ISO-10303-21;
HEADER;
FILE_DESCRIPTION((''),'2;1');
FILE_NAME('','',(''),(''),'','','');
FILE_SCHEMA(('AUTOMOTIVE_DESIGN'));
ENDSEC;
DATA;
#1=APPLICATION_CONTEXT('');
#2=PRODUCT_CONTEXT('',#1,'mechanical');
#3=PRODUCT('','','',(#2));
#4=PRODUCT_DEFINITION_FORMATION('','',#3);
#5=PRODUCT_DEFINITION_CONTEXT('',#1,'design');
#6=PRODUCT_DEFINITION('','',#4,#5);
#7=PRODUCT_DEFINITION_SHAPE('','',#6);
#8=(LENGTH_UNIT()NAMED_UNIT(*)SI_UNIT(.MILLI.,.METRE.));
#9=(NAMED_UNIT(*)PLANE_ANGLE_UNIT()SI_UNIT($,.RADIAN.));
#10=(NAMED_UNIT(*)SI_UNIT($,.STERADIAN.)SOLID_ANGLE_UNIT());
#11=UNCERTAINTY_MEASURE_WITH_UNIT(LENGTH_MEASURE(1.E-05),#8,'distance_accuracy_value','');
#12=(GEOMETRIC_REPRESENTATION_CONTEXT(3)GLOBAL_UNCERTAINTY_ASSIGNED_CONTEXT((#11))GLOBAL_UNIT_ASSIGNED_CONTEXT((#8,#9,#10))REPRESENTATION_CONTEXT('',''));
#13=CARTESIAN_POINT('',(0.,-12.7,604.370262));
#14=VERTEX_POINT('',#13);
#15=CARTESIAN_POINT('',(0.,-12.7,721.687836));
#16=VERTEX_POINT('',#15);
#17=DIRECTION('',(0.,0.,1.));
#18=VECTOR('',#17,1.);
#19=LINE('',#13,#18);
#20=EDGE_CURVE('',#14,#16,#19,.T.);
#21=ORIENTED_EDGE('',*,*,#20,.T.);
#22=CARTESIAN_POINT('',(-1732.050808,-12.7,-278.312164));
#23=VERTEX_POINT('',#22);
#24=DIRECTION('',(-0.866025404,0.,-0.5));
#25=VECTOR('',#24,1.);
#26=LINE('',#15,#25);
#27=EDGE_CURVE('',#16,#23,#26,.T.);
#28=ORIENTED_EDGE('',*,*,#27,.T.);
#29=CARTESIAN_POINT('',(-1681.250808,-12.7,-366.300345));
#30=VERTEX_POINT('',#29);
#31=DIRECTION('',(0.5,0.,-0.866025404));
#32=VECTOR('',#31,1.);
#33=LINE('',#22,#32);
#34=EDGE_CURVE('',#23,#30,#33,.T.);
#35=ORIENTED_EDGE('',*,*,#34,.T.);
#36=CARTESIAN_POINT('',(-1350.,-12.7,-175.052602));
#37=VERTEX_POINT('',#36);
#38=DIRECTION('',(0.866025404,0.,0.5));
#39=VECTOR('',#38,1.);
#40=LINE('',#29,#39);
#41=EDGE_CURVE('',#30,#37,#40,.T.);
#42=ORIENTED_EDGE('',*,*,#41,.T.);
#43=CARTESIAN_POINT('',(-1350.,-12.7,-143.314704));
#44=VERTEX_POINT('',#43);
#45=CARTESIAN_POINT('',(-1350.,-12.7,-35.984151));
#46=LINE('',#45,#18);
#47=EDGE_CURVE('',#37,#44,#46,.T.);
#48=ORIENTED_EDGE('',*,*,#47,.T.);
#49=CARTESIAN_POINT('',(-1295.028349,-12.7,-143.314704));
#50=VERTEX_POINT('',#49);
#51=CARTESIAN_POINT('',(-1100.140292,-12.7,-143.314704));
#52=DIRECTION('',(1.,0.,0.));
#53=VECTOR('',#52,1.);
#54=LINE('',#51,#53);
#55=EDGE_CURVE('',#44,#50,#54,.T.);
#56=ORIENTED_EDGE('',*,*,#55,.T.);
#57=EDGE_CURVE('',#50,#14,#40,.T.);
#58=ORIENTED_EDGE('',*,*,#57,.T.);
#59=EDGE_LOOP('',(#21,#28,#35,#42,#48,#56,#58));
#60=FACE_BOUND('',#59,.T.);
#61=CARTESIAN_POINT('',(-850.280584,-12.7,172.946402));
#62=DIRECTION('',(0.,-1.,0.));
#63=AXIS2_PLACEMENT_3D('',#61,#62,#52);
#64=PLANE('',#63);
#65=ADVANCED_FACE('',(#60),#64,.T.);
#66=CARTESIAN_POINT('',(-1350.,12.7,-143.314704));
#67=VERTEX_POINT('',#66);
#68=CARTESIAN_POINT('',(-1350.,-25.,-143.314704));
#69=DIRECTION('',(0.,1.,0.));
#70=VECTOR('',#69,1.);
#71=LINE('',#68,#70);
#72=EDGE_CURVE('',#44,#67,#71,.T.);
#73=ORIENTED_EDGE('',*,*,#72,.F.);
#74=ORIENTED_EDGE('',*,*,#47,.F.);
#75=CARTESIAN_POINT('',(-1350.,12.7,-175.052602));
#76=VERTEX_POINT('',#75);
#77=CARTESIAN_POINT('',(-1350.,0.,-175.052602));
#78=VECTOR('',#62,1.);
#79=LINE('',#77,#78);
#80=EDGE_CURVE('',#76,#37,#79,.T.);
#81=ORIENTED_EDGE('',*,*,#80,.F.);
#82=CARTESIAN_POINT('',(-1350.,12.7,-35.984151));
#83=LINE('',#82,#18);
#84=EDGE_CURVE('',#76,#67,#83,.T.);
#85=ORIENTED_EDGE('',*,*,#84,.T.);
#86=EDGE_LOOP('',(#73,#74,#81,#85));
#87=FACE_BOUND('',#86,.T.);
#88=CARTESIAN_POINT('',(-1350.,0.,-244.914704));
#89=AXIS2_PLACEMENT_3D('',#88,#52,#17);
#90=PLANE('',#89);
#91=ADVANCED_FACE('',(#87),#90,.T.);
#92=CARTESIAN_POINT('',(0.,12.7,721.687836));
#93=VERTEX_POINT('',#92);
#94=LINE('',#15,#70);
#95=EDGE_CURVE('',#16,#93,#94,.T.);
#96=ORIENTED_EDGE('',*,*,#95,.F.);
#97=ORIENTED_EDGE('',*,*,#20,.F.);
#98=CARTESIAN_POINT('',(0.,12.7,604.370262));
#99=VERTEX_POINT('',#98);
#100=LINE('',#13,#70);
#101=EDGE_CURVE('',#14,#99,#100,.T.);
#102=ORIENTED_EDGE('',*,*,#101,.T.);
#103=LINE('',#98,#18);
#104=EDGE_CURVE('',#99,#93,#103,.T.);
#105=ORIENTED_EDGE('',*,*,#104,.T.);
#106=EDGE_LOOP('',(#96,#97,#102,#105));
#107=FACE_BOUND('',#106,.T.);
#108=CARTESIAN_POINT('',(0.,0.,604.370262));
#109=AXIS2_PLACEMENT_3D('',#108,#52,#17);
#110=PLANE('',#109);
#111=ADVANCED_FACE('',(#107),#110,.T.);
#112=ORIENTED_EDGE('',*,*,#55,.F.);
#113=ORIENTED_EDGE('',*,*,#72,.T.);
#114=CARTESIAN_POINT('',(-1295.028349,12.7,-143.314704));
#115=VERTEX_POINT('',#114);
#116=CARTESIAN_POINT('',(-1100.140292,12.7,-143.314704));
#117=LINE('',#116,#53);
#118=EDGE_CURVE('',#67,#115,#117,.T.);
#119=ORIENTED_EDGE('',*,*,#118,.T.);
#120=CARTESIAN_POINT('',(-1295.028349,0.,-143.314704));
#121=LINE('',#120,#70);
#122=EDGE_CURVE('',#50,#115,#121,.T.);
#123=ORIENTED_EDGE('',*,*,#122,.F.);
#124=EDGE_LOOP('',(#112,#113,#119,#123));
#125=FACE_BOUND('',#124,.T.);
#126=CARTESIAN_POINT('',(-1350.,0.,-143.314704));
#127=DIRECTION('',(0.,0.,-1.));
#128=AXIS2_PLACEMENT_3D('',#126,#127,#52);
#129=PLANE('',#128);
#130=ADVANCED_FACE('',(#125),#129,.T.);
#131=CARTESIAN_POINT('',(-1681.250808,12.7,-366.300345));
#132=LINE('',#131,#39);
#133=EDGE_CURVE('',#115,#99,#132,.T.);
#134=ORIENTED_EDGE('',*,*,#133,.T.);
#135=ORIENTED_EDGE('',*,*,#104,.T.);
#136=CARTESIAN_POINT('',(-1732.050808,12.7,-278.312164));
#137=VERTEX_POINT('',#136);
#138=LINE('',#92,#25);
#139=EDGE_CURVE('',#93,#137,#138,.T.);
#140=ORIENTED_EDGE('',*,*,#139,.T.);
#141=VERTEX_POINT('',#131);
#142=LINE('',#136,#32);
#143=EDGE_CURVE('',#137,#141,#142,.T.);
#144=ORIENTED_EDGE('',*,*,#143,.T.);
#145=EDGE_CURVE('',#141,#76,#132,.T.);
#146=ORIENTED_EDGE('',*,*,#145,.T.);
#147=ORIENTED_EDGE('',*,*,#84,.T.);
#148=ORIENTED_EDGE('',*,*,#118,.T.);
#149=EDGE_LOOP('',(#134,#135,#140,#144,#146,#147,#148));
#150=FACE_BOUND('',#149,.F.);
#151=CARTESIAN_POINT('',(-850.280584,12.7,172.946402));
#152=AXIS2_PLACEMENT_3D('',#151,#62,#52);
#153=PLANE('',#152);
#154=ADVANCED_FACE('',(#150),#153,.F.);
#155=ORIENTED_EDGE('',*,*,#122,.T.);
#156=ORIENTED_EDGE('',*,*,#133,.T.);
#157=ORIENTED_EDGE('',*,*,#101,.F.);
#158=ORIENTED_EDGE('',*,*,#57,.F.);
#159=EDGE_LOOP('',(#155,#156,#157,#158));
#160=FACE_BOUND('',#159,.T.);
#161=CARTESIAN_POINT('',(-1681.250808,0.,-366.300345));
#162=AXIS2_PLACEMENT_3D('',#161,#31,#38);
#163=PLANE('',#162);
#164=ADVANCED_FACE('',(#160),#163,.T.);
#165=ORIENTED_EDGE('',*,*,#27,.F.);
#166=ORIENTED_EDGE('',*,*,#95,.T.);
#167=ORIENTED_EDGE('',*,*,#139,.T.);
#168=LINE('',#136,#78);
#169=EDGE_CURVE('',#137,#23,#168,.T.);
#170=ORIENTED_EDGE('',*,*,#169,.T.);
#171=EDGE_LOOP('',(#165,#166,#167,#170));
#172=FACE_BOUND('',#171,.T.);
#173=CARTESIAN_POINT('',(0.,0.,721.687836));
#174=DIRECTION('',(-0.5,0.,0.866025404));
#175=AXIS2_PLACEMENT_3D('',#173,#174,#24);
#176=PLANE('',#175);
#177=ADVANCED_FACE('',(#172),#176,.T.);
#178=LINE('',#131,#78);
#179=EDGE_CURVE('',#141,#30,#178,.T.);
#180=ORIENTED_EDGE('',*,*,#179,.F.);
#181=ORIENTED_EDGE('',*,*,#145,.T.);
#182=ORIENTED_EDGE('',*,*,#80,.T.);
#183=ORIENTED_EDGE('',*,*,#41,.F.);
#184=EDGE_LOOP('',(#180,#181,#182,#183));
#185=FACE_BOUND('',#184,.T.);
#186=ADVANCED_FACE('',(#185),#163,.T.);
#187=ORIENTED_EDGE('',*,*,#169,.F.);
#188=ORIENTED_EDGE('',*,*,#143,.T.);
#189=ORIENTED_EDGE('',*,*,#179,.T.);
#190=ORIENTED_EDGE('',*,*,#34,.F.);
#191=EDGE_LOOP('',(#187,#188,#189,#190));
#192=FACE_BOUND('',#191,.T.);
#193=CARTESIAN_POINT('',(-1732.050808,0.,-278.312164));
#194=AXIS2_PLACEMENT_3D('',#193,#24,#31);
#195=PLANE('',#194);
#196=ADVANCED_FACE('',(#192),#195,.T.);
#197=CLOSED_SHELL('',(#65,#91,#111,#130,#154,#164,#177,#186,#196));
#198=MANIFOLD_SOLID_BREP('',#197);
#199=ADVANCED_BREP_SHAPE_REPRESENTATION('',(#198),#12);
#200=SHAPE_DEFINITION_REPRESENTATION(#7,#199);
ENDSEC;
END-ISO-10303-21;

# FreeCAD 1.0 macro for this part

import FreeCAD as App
import Part
import Sketcher
from FreeCAD import Vector
Q = App.Units.Quantity

doc = App.newDocument("Part")
body = doc.addObject("PartDesign::Body", "Body")

# Sketch on XZ plane
sketch1 = body.newObject("Sketcher::SketchObject", "Sketch")
sketch1.AttachmentSupport = (doc.getObject("XZ_Plane"), [""])
sketch1.MapMode = "FlatFace"
sketch1.addGeometry([
    Part.LineSegment(Vector(0, 722, 0), Vector(-1732, -278, 0)),
    Part.LineSegment(Vector(-1732, -278, 0), Vector(-1681, -366, 0)),
    Part.LineSegment(Vector(-1681, -366, 0), Vector(0, 604, 0)),
    Part.LineSegment(Vector(0, 604, 0), Vector(0, 722, 0)),
], False)
sketch1.addConstraint([
    Sketcher.Constraint("Coincident", 0, 2, 1, 1),
    Sketcher.Constraint("Coincident", 1, 2, 2, 1),
    Sketcher.Constraint("Coincident", 2, 2, 3, 1),
    Sketcher.Constraint("Coincident", 3, 2, 0, 1),
    Sketcher.Constraint("Vertical", 3),
    Sketcher.Constraint("PointOnObject", 2, 2, -2),
    Sketcher.Constraint("Perpendicular", 0, 1),
    Sketcher.Constraint("Perpendicular", 1, 2),
    Sketcher.Constraint("Angle", 0, Q("-150 deg")),
    Sketcher.Constraint("Distance", 0, 2000.0),
    Sketcher.Constraint("Distance", 1, 101.6),
    Sketcher.Constraint("DistanceY", -1, 1, 2, 2, 604.370262),
])
pad1 = body.newObject("PartDesign::Pad", "Pad")
pad1.Profile = sketch1
pad1.Length = 25.4
pad1.Midplane = True

# Sketch on XZ plane
sketch2 = body.newObject("Sketcher::SketchObject", "Sketch001")
sketch2.AttachmentSupport = (doc.getObject("XZ_Plane"), [""])
sketch2.MapMode = "FlatFace"
sketch2.addGeometry([
    Part.LineSegment(Vector(-1350, -143, 0), Vector(-1350, -245, 0)),
    Part.LineSegment(Vector(-1350, -245, 0), Vector(-1248, -245, 0)),
    Part.LineSegment(Vector(-1248, -245, 0), Vector(-1248, -143, 0)),
    Part.LineSegment(Vector(-1248, -143, 0), Vector(-1350, -143, 0)),
], False)
sketch2.addConstraint([
    Sketcher.Constraint("Coincident", 0, 2, 1, 1),
    Sketcher.Constraint("Coincident", 1, 2, 2, 1),
    Sketcher.Constraint("Coincident", 2, 2, 3, 1),
    Sketcher.Constraint("Coincident", 3, 2, 0, 1),
    Sketcher.Constraint("Vertical", 0),
    Sketcher.Constraint("Horizontal", 1),
    Sketcher.Constraint("Vertical", 2),
    Sketcher.Constraint("Horizontal", 3),
    Sketcher.Constraint("Equal", 3, 0),
    Sketcher.Constraint("DistanceX", 1, 1, 1, 2, 101.6),
    Sketcher.Constraint("DistanceX", 0, 2, -1, 1, 1350.0),
    Sketcher.Constraint("DistanceY", 0, 2, -1, 1, 244.914704),
])
pocket1 = body.newObject("PartDesign::Pocket", "Pocket")
pocket1.Profile = sketch2
pocket1.Length = 50
pocket1.Midplane = True

doc.recompute()
